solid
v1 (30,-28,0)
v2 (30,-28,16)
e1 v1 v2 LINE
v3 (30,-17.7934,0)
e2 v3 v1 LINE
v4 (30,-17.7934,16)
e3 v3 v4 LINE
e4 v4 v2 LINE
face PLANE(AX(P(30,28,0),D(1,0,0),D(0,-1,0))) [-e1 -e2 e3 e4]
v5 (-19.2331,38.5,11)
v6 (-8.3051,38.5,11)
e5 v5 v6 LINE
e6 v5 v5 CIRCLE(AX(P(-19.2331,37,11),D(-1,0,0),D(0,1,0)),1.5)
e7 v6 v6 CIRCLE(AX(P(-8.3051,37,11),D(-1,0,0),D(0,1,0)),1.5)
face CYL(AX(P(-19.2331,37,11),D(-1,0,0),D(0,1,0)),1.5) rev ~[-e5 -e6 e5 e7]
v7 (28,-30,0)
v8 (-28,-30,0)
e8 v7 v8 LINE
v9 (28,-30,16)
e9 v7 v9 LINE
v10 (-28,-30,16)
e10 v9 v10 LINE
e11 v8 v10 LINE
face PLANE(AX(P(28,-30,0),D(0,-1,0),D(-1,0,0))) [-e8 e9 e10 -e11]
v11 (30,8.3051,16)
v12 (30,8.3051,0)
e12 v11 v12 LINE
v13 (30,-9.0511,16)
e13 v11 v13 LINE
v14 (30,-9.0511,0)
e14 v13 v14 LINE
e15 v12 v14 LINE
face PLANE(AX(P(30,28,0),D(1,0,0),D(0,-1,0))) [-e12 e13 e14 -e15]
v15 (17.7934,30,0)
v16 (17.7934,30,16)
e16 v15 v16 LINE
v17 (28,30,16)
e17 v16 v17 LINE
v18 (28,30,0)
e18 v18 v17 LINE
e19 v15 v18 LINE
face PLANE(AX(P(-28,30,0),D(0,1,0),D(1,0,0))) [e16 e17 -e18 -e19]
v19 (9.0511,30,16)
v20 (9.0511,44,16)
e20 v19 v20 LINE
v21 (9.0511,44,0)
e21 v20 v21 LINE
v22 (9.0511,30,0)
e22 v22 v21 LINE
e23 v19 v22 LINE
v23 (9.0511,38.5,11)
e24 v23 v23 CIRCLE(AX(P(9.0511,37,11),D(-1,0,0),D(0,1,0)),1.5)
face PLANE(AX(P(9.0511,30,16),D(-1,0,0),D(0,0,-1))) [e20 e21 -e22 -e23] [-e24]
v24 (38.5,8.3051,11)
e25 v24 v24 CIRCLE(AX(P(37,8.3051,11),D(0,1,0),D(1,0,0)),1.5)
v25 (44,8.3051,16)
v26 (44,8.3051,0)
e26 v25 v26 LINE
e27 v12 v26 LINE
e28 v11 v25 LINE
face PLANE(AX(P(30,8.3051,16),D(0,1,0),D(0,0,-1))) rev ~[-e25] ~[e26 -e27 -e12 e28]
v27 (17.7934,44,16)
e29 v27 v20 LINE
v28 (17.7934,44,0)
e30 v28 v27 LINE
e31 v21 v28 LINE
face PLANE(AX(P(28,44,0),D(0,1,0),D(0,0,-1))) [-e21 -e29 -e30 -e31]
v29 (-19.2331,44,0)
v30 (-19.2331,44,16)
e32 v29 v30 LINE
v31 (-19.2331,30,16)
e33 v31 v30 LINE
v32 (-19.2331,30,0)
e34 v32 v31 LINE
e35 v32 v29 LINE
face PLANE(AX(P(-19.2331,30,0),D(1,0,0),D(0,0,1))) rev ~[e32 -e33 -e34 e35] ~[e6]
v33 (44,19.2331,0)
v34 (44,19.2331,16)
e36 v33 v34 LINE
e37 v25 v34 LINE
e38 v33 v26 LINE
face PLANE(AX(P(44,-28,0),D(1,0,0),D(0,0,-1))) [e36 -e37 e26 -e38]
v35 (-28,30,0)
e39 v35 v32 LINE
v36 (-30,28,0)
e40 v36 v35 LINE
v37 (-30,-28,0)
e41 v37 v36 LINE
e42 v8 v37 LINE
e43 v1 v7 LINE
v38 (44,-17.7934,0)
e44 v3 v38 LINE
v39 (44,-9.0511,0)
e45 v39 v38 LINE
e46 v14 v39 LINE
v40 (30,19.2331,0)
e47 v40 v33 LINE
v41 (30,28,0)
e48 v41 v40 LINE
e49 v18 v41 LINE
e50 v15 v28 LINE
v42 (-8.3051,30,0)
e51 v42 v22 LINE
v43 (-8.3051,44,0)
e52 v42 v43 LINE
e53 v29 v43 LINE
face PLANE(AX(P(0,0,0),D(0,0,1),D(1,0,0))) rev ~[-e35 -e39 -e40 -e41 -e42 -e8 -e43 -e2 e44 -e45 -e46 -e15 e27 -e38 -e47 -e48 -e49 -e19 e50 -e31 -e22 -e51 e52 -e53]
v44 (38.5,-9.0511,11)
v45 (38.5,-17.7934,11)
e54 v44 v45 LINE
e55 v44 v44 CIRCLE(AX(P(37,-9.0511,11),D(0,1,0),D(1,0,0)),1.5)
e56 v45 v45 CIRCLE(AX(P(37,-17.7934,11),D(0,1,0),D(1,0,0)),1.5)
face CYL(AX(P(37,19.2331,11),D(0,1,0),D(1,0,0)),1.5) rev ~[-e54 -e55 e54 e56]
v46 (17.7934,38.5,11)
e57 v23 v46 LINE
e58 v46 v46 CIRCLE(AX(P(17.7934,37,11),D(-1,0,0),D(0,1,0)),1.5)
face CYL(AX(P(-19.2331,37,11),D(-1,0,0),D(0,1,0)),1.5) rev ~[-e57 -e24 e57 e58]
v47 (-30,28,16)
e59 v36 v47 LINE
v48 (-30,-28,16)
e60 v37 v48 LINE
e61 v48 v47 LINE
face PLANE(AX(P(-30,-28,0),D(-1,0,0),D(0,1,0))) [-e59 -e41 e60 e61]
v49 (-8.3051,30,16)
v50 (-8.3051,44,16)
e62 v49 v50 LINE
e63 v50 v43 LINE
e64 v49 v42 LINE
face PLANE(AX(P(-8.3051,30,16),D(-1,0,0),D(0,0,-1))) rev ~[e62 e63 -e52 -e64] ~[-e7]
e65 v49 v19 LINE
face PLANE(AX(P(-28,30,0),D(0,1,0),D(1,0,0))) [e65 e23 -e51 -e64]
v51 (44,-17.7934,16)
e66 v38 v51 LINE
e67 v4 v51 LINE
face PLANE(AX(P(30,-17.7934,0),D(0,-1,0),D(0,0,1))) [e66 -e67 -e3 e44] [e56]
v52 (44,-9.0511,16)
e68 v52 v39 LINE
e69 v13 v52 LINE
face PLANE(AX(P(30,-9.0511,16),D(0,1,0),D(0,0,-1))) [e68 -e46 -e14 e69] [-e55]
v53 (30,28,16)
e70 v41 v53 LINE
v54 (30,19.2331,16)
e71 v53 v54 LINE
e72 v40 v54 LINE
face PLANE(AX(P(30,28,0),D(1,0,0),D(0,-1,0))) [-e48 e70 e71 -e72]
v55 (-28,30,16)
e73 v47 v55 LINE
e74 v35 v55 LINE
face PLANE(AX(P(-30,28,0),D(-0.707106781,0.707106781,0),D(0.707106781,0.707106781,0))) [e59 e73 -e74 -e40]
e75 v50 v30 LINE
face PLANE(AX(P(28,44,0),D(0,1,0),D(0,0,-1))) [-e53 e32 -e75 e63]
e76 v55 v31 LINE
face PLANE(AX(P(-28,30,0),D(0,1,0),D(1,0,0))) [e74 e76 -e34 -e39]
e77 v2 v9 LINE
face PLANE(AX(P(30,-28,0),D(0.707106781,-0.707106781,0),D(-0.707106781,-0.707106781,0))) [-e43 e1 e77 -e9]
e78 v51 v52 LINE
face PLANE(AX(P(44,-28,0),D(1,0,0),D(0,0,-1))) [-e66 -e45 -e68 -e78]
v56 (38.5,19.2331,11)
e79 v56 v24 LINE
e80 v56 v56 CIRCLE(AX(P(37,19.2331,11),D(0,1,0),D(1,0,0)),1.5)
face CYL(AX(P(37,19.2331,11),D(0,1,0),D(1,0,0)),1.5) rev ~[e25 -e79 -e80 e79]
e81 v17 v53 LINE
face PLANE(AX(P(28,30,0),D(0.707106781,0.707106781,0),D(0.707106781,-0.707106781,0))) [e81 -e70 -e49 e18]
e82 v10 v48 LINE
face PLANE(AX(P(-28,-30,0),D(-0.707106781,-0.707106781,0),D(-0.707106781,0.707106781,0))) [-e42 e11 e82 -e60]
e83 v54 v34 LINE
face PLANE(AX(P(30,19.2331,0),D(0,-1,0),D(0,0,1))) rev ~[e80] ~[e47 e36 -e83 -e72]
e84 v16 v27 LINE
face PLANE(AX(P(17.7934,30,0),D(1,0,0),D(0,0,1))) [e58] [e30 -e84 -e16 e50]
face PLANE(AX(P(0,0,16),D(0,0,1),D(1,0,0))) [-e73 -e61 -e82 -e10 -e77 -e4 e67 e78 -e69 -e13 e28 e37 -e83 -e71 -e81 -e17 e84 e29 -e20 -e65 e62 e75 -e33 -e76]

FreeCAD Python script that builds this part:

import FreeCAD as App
import Part
import Sketcher


def add_polygon(sketch, points):
    """Adds a closed chain of lines whose ends are joined by coincident constraints."""
    first, n = sketch.GeometryCount, len(points)
    for a, b in zip(points, points[1:] + points[:1]):
        sketch.addGeometry(Part.LineSegment(App.Vector(*a, 0), App.Vector(*b, 0)), False)
    for i in range(n):
        sketch.addConstraint(Sketcher.Constraint("Coincident", first + i, 2, first + (i + 1) % n, 1))

doc = App.newDocument("Part")
body = doc.addObject("PartDesign::Body", "Body")

# Sketch on XY plane
sketch1 = doc.addObject("Sketcher::SketchObject", "Sketch")
body.addObject(sketch1)
sketch1.AttachmentSupport = (doc.XY_Plane, [""])
sketch1.MapMode = "FlatFace"
add_polygon(sketch1, [(-28, 30), (-30, 28), (-30, -28), (-28, -30), (28, -30), (30, -28), (30, 28), (28, 30)])  # lines 0-7
sketch1.addConstraint([
    Sketcher.Constraint("Vertical", 1),
    Sketcher.Constraint("Horizontal", 3),
    Sketcher.Constraint("Vertical", 5),
    Sketcher.Constraint("Horizontal", 7),
    Sketcher.Constraint("Symmetric", 0, 2, 4, 2, -1, 1),
    Sketcher.Constraint("Symmetric", 2, 2, 6, 2, -1, 1),
    Sketcher.Constraint("Perpendicular", 0, 2),
    Sketcher.Constraint("Perpendicular", 2, 4),
    Sketcher.Constraint("Perpendicular", 4, 6),
    Sketcher.Constraint("Horizontal", 1, 2, 4, 2),
    Sketcher.Constraint("Vertical", 3, 2, 6, 2),
    Sketcher.Constraint("Equal", 7, 1),
    Sketcher.Constraint("DistanceX", 3, 1, 3, 2, 56.0),
    Sketcher.Constraint("DistanceX", 0, 2, -1, 1, 30.0),
])
pad1 = doc.addObject("PartDesign::Pad", "Pad")
body.addObject(pad1)
pad1.Profile = sketch1
pad1.Length = 16

# Sketch on YZ plane
sketch2 = doc.addObject("Sketcher::SketchObject", "Sketch001")
body.addObject(sketch2)
sketch2.AttachmentSupport = (doc.YZ_Plane, [""])
sketch2.MapMode = "FlatFace"
sketch2.AttachmentOffset = App.Placement(App.Vector(0, 0, 30), App.Rotation())
add_polygon(sketch2, [(8.3051, 0), (19.2331, 0), (19.2331, 16), (8.3051, 16)])  # lines 0-3
add_polygon(sketch2, [(-17.7934, 0), (-9.0511, 0), (-9.0511, 16), (-17.7934, 16)])  # lines 4-7
sketch2.addConstraint([
    Sketcher.Constraint("Horizontal", 0),
    Sketcher.Constraint("Vertical", 1),
    Sketcher.Constraint("Horizontal", 2),
    Sketcher.Constraint("Vertical", 3),
    Sketcher.Constraint("Horizontal", 4),
    Sketcher.Constraint("Vertical", 5),
    Sketcher.Constraint("Horizontal", 6),
    Sketcher.Constraint("Vertical", 7),
    Sketcher.Constraint("PointOnObject", 0, 2, -1),
    Sketcher.Constraint("PointOnObject", 4, 2, -1),
    Sketcher.Constraint("Horizontal", 2, 2, 5, 2),
    Sketcher.Constraint("DistanceY", 1, 1, 1, 2, 16.0),
    Sketcher.Constraint("DistanceX", 0, 1, 0, 2, 10.928),
    Sketcher.Constraint("DistanceX", 4, 1, 4, 2, 8.7423),
    Sketcher.Constraint("DistanceX", -1, 1, 0, 2, 19.233),
    Sketcher.Constraint("DistanceX", 4, 2, -1, 1, 9.051),
])
pad2 = doc.addObject("PartDesign::Pad", "Pad001")
body.addObject(pad2)
pad2.Profile = sketch2
pad2.Length = 14

# Sketch on XZ plane
sketch3 = doc.addObject("Sketcher::SketchObject", "Sketch002")
body.addObject(sketch3)
sketch3.AttachmentSupport = (doc.XZ_Plane, [""])
sketch3.MapMode = "FlatFace"
sketch3.AttachmentOffset = App.Placement(App.Vector(0, 0, -19.2331), App.Rotation())
sketch3.addGeometry(Part.Circle(App.Vector(37, 11, 0), App.Vector(0, 0, 1), 1.5), False)
sketch3.addConstraint([
    Sketcher.Constraint("Diameter", 0, 3.0),
    Sketcher.Constraint("DistanceX", -1, 1, 0, 3, 37.0),
    Sketcher.Constraint("DistanceY", -1, 1, 0, 3, 11.0),
])
pocket1 = doc.addObject("PartDesign::Pocket", "Pocket")
body.addObject(pocket1)
pocket1.Profile = sketch3
pocket1.Type = "ThroughAll"
pocket1.Reversed = True
doc.recompute()

polarpattern = doc.addObject("PartDesign::PolarPattern", "PolarPattern")
body.addObject(polarpattern)
polarpattern.Originals = [pad2, pocket1]
polarpattern.Axis = (doc.Z_Axis, [""])
polarpattern.Angle = 90
polarpattern.Occurrences = 2
body.Tip = polarpattern

doc.recompute()
